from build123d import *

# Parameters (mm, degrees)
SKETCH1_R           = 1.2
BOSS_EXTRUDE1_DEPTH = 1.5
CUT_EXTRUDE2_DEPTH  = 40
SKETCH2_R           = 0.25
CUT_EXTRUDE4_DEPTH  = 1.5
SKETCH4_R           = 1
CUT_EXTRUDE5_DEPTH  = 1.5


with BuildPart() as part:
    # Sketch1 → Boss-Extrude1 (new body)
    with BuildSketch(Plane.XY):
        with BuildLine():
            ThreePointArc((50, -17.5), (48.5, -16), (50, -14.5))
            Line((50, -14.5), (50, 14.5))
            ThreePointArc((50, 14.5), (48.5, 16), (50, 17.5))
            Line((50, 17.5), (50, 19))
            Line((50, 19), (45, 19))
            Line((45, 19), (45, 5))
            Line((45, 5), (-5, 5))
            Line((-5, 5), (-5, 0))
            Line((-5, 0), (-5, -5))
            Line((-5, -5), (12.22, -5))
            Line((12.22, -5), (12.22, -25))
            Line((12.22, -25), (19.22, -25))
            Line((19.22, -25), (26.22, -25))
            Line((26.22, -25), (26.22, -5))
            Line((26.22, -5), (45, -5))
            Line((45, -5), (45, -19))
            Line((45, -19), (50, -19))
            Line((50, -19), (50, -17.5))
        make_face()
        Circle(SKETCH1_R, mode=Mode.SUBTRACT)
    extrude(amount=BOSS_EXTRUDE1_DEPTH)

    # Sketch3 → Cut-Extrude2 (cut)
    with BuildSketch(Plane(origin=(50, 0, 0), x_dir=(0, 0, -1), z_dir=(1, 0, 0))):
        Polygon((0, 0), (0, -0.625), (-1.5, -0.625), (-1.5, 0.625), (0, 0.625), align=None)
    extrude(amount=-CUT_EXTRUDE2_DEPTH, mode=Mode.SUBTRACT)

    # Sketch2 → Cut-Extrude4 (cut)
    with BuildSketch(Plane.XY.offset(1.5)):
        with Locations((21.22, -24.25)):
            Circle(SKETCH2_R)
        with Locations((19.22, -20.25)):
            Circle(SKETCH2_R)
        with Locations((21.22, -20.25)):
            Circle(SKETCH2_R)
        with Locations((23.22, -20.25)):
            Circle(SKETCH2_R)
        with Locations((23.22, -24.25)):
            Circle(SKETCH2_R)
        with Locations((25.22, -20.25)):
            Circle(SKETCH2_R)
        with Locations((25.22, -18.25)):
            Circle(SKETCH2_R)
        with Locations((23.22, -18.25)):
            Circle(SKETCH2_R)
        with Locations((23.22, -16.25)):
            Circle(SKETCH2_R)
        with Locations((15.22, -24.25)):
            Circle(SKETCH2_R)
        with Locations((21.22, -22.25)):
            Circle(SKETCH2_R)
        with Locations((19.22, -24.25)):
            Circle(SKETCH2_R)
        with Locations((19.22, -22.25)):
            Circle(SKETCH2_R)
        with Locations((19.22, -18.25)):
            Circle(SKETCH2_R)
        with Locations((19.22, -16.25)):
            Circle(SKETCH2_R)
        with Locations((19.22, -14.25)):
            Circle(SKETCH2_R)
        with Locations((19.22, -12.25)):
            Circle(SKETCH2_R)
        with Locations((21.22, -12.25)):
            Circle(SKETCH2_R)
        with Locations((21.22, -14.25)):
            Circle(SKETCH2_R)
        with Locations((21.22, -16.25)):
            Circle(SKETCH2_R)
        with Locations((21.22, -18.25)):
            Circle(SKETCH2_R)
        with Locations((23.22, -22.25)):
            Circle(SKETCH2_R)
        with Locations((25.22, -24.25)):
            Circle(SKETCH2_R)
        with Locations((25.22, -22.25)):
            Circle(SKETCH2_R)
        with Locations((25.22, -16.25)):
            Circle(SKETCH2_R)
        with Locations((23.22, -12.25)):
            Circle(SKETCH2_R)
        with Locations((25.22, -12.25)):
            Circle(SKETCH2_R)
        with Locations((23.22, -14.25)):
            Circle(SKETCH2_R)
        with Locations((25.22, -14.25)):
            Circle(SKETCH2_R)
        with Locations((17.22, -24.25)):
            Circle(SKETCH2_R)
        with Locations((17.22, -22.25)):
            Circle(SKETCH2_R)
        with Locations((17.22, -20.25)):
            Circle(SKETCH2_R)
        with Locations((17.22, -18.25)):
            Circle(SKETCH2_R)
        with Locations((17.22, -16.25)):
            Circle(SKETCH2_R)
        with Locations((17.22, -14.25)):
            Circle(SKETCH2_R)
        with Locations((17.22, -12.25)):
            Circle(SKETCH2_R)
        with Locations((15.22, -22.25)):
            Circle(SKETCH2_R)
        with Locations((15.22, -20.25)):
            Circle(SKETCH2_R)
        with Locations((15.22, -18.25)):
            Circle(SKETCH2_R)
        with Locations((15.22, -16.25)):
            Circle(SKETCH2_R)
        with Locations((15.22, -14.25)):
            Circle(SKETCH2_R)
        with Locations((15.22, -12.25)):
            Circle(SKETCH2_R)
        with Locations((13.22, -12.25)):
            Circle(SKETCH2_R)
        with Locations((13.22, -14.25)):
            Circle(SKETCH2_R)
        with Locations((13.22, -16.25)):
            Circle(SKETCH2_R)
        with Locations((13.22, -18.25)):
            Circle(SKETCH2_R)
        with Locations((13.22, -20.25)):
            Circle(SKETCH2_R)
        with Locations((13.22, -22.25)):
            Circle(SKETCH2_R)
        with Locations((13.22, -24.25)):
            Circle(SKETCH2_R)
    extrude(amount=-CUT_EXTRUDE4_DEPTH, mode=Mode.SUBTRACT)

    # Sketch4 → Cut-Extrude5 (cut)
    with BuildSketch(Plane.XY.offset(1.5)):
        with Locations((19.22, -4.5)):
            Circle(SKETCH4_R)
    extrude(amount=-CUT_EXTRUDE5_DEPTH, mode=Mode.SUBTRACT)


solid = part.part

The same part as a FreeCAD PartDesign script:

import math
import FreeCAD as App
import Part
import Sketcher

V = App.Vector
Q = App.Units.Quantity

doc = App.newDocument("Part")
body = doc.addObject("PartDesign::Body", "Body")

sketch1 = body.newObject("Sketcher::SketchObject", "Sketch")
sketch1.AttachmentSupport = (doc.getObject("XY_Plane"), [""])
sketch1.MapMode = "FlatFace"
sketch1.addGeometry(Part.ArcOfCircle(Part.Circle(V(50, -16, 0), V(0, 0, 1), 1.5), math.radians(90), math.radians(270)), False)
sketch1.addGeometry(Part.LineSegment(V(50, -14.5, 0), V(50, 14.5, 0)), False)
sketch1.addGeometry(Part.ArcOfCircle(Part.Circle(V(50, 16, 0), V(0, 0, 1), 1.5), math.radians(90), math.radians(270)), False)
sketch1.addGeometry(Part.LineSegment(V(50, 17.5, 0), V(50, 19, 0)), False)
sketch1.addGeometry(Part.LineSegment(V(50, 19, 0), V(45, 19, 0)), False)
sketch1.addGeometry(Part.LineSegment(V(45, 19, 0), V(45, 5, 0)), False)
sketch1.addGeometry(Part.LineSegment(V(45, 5, 0), V(-5, 5, 0)), False)
sketch1.addGeometry(Part.LineSegment(V(-5, 5, 0), V(-5, -5, 0)), False)
sketch1.addGeometry(Part.LineSegment(V(-5, -5, 0), V(12.2, -5, 0)), False)
sketch1.addGeometry(Part.LineSegment(V(12.2, -5, 0), V(12.2, -25, 0)), False)
sketch1.addGeometry(Part.LineSegment(V(12.2, -25, 0), V(26.2, -25, 0)), False)
sketch1.addGeometry(Part.LineSegment(V(26.2, -25, 0), V(26.2, -5, 0)), False)
sketch1.addGeometry(Part.LineSegment(V(26.2, -5, 0), V(45, -5, 0)), False)
sketch1.addGeometry(Part.LineSegment(V(45, -5, 0), V(45, -19, 0)), False)
sketch1.addGeometry(Part.LineSegment(V(45, -19, 0), V(50, -19, 0)), False)
sketch1.addGeometry(Part.LineSegment(V(50, -19, 0), V(50, -17.5, 0)), False)
sketch1.addGeometry(Part.Circle(V(0, 0, 0), V(0, 0, 1), 1.2), False)
sketch1.addConstraint(Sketcher.Constraint("Coincident", 0, 1, 1, 1))
sketch1.addConstraint(Sketcher.Constraint("Coincident", 1, 2, 2, 2))
sketch1.addConstraint(Sketcher.Constraint("Coincident", 2, 1, 3, 1))
sketch1.addConstraint(Sketcher.Constraint("Coincident", 3, 2, 4, 1))
sketch1.addConstraint(Sketcher.Constraint("Coincident", 4, 2, 5, 1))
sketch1.addConstraint(Sketcher.Constraint("Coincident", 5, 2, 6, 1))
sketch1.addConstraint(Sketcher.Constraint("Coincident", 6, 2, 7, 1))
sketch1.addConstraint(Sketcher.Constraint("Coincident", 7, 2, 8, 1))
sketch1.addConstraint(Sketcher.Constraint("Coincident", 8, 2, 9, 1))
sketch1.addConstraint(Sketcher.Constraint("Coincident", 9, 2, 10, 1))
sketch1.addConstraint(Sketcher.Constraint("Coincident", 10, 2, 11, 1))
sketch1.addConstraint(Sketcher.Constraint("Coincident", 11, 2, 12, 1))
sketch1.addConstraint(Sketcher.Constraint("Coincident", 12, 2, 13, 1))
sketch1.addConstraint(Sketcher.Constraint("Coincident", 13, 2, 14, 1))
sketch1.addConstraint(Sketcher.Constraint("Coincident", 14, 2, 15, 1))
sketch1.addConstraint(Sketcher.Constraint("Coincident", 15, 2, 0, 2))
sketch1.addConstraint(Sketcher.Constraint("Vertical", 1))
sketch1.addConstraint(Sketcher.Constraint("Vertical", 3))
sketch1.addConstraint(Sketcher.Constraint("Horizontal", 4))
sketch1.addConstraint(Sketcher.Constraint("Vertical", 5))
sketch1.addConstraint(Sketcher.Constraint("Horizontal", 6))
sketch1.addConstraint(Sketcher.Constraint("Vertical", 7))
sketch1.addConstraint(Sketcher.Constraint("Horizontal", 8))
sketch1.addConstraint(Sketcher.Constraint("Vertical", 9))
sketch1.addConstraint(Sketcher.Constraint("Horizontal", 10))
sketch1.addConstraint(Sketcher.Constraint("Vertical", 11))
sketch1.addConstraint(Sketcher.Constraint("Horizontal", 12))
sketch1.addConstraint(Sketcher.Constraint("Vertical", 13))
sketch1.addConstraint(Sketcher.Constraint("Horizontal", 14))
sketch1.addConstraint(Sketcher.Constraint("Vertical", 15))
sketch1.addConstraint(Sketcher.Constraint("Coincident", 16, 3, -1, 1))
sketch1.addConstraint(Sketcher.Constraint("Equal", 0, 2))
sketch1.addConstraint(Sketcher.Constraint("Symmetric", 0, 3, 2, 3, -1))
sketch1.addConstraint(Sketcher.Constraint("Symmetric", 5, 2, 12, 2, -1))
sketch1.addConstraint(Sketcher.Constraint("Symmetric", 3, 2, 14, 2, -1))
sketch1.addConstraint(Sketcher.Constraint("Horizontal", 8, 2, 11, 2))
sketch1.addConstraint(Sketcher.Constraint("Vertical", 2, 3, 0, 1))
sketch1.addConstraint(Sketcher.Constraint("Vertical", 1, 2, 2, 1))
sketch1.addConstraint(Sketcher.Constraint("Equal", 10, 5))
sketch1.addConstraint(Sketcher.Constraint("Diameter", 16, Q("2.4 mm")))
sketch1.addConstraint(Sketcher.Constraint("Radius", 0, Q("1.5 mm")))
sketch1.addConstraint(Sketcher.Constraint("DistanceX", 4, 2, 4, 1, Q("5 mm")))
sketch1.addConstraint(Sketcher.Constraint("DistanceX", 6, 2, 6, 1, Q("50 mm")))
sketch1.addConstraint(Sketcher.Constraint("DistanceX", 10, 1, 10, 2, Q("14 mm")))
sketch1.addConstraint(Sketcher.Constraint("DistanceY", 1, 1, 1, 2, Q("29 mm")))
sketch1.addConstraint(Sketcher.Constraint("DistanceY", 7, 2, 7, 1, Q("10 mm")))
sketch1.addConstraint(Sketcher.Constraint("DistanceY", 9, 2, 9, 1, Q("20 mm")))
sketch1.addConstraint(Sketcher.Constraint("DistanceX", -1, 1, 0, 3, Q("50 mm")))
sketch1.addConstraint(Sketcher.Constraint("DistanceX", 8, 1, 8, 2, Q("17.22 mm")))
pad1 = body.newObject("PartDesign::Pad", "Pad")
pad1.Profile = sketch1
pad1.Length = 1.5

sketch2 = body.newObject("Sketcher::SketchObject", "Sketch001")
sketch2.AttachmentSupport = (doc.getObject("YZ_Plane"), [""])
sketch2.MapMode = "FlatFace"
sketch2.AttachmentOffset = App.Placement(V(0, 0, 50), App.Rotation())
sketch2.addGeometry(Part.LineSegment(V(-0.6, 0, 0), V(0.6, 0, 0)), False)
sketch2.addGeometry(Part.LineSegment(V(0.6, 0, 0), V(0.6, 1.5, 0)), False)
sketch2.addGeometry(Part.LineSegment(V(0.6, 1.5, 0), V(-0.6, 1.5, 0)), False)
sketch2.addGeometry(Part.LineSegment(V(-0.6, 1.5, 0), V(-0.6, 0, 0)), False)
sketch2.addConstraint(Sketcher.Constraint("Coincident", 0, 2, 1, 1))
sketch2.addConstraint(Sketcher.Constraint("Coincident", 1, 2, 2, 1))
sketch2.addConstraint(Sketcher.Constraint("Coincident", 2, 2, 3, 1))
sketch2.addConstraint(Sketcher.Constraint("Coincident", 3, 2, 0, 1))
sketch2.addConstraint(Sketcher.Constraint("Horizontal", 0))
sketch2.addConstraint(Sketcher.Constraint("Vertical", 1))
sketch2.addConstraint(Sketcher.Constraint("Horizontal", 2))
sketch2.addConstraint(Sketcher.Constraint("Vertical", 3))
sketch2.addConstraint(Sketcher.Constraint("Symmetric", 0, 2, 3, 2, -1, 1))
sketch2.addConstraint(Sketcher.Constraint("DistanceY", 1, 1, 1, 2, Q("1.5 mm")))
sketch2.addConstraint(Sketcher.Constraint("DistanceX", 0, 1, 0, 2, Q("1.25 mm")))
pocket1 = body.newObject("PartDesign::Pocket", "Pocket")
pocket1.Profile = sketch2
pocket1.Length = 40

sketch3 = body.newObject("Sketcher::SketchObject", "Sketch002")
sketch3.AttachmentSupport = (doc.getObject("XY_Plane"), [""])
sketch3.MapMode = "FlatFace"
sketch3.AttachmentOffset = App.Placement(V(0, 0, 1.5), App.Rotation())
sketch3.addGeometry(Part.Circle(V(21.22, -24.25, 0), V(0, 0, 1), 0.25), False)
sketch3.addGeometry(Part.Circle(V(19.22, -20.25, 0), V(0, 0, 1), 0.25), False)
sketch3.addGeometry(Part.Circle(V(21.22, -20.25, 0), V(0, 0, 1), 0.25), False)
sketch3.addGeometry(Part.Circle(V(23.22, -20.25, 0), V(0, 0, 1), 0.25), False)
sketch3.addGeometry(Part.Circle(V(23.22, -24.25, 0), V(0, 0, 1), 0.25), False)
sketch3.addGeometry(Part.Circle(V(25.22, -20.25, 0), V(0, 0, 1), 0.25), False)
sketch3.addGeometry(Part.Circle(V(25.22, -18.25, 0), V(0, 0, 1), 0.25), False)
sketch3.addGeometry(Part.Circle(V(23.22, -18.25, 0), V(0, 0, 1), 0.25), False)
sketch3.addGeometry(Part.Circle(V(23.22, -16.25, 0), V(0, 0, 1), 0.25), False)
sketch3.addGeometry(Part.Circle(V(15.22, -24.25, 0), V(0, 0, 1), 0.25), False)
sketch3.addGeometry(Part.Circle(V(21.22, -22.25, 0), V(0, 0, 1), 0.25), False)
sketch3.addGeometry(Part.Circle(V(19.22, -24.25, 0), V(0, 0, 1), 0.25), False)
sketch3.addGeometry(Part.Circle(V(19.22, -22.25, 0), V(0, 0, 1), 0.25), False)
sketch3.addGeometry(Part.Circle(V(19.22, -18.25, 0), V(0, 0, 1), 0.25), False)
sketch3.addGeometry(Part.Circle(V(19.22, -16.25, 0), V(0, 0, 1), 0.25), False)
sketch3.addGeometry(Part.Circle(V(19.22, -14.25, 0), V(0, 0, 1), 0.25), False)
sketch3.addGeometry(Part.Circle(V(19.22, -12.25, 0), V(0, 0, 1), 0.25), False)
sketch3.addGeometry(Part.Circle(V(21.22, -12.25, 0), V(0, 0, 1), 0.25), False)
sketch3.addGeometry(Part.Circle(V(21.22, -14.25, 0), V(0, 0, 1), 0.25), False)
sketch3.addGeometry(Part.Circle(V(21.22, -16.25, 0), V(0, 0, 1), 0.25), False)
sketch3.addGeometry(Part.Circle(V(21.22, -18.25, 0), V(0, 0, 1), 0.25), False)
sketch3.addGeometry(Part.Circle(V(23.22, -22.25, 0), V(0, 0, 1), 0.25), False)
sketch3.addGeometry(Part.Circle(V(25.22, -24.25, 0), V(0, 0, 1), 0.25), False)
sketch3.addGeometry(Part.Circle(V(25.22, -22.25, 0), V(0, 0, 1), 0.25), False)
sketch3.addGeometry(Part.Circle(V(25.22, -16.25, 0), V(0, 0, 1), 0.25), False)
sketch3.addGeometry(Part.Circle(V(23.22, -12.25, 0), V(0, 0, 1), 0.25), False)
sketch3.addGeometry(Part.Circle(V(25.22, -12.25, 0), V(0, 0, 1), 0.25), False)
sketch3.addGeometry(Part.Circle(V(23.22, -14.25, 0), V(0, 0, 1), 0.25), False)
sketch3.addGeometry(Part.Circle(V(25.22, -14.25, 0), V(0, 0, 1), 0.25), False)
sketch3.addGeometry(Part.Circle(V(17.22, -24.25, 0), V(0, 0, 1), 0.25), False)
sketch3.addGeometry(Part.Circle(V(17.22, -22.25, 0), V(0, 0, 1), 0.25), False)
sketch3.addGeometry(Part.Circle(V(17.22, -20.25, 0), V(0, 0, 1), 0.25), False)
sketch3.addGeometry(Part.Circle(V(17.22, -18.25, 0), V(0, 0, 1), 0.25), False)
sketch3.addGeometry(Part.Circle(V(17.22, -16.25, 0), V(0, 0, 1), 0.25), False)
sketch3.addGeometry(Part.Circle(V(17.22, -14.25, 0), V(0, 0, 1), 0.25), False)
sketch3.addGeometry(Part.Circle(V(17.22, -12.25, 0), V(0, 0, 1), 0.25), False)
sketch3.addGeometry(Part.Circle(V(15.22, -22.25, 0), V(0, 0, 1), 0.25), False)
sketch3.addGeometry(Part.Circle(V(15.22, -20.25, 0), V(0, 0, 1), 0.25), False)
sketch3.addGeometry(Part.Circle(V(15.22, -18.25, 0), V(0, 0, 1), 0.25), False)
sketch3.addGeometry(Part.Circle(V(15.22, -16.25, 0), V(0, 0, 1), 0.25), False)
sketch3.addGeometry(Part.Circle(V(15.22, -14.25, 0), V(0, 0, 1), 0.25), False)
sketch3.addGeometry(Part.Circle(V(15.22, -12.25, 0), V(0, 0, 1), 0.25), False)
sketch3.addGeometry(Part.Circle(V(13.22, -12.25, 0), V(0, 0, 1), 0.25), False)
sketch3.addGeometry(Part.Circle(V(13.22, -14.25, 0), V(0, 0, 1), 0.25), False)
sketch3.addGeometry(Part.Circle(V(13.22, -16.25, 0), V(0, 0, 1), 0.25), False)
sketch3.addGeometry(Part.Circle(V(13.22, -18.25, 0), V(0, 0, 1), 0.25), False)
sketch3.addGeometry(Part.Circle(V(13.22, -20.25, 0), V(0, 0, 1), 0.25), False)
sketch3.addGeometry(Part.Circle(V(13.22, -22.25, 0), V(0, 0, 1), 0.25), False)
sketch3.addGeometry(Part.Circle(V(13.22, -24.25, 0), V(0, 0, 1), 0.25), False)
sketch3.addConstraint(Sketcher.Constraint("Equal", 0, 1))
sketch3.addConstraint(Sketcher.Constraint("Equal", 1, 2))
sketch3.addConstraint(Sketcher.Constraint("Equal", 2, 3))
sketch3.addConstraint(Sketcher.Constraint("Equal", 3, 4))
sketch3.addConstraint(Sketcher.Constraint("Equal", 4, 5))
sketch3.addConstraint(Sketcher.Constraint("Equal", 5, 6))
sketch3.addConstraint(Sketcher.Constraint("Equal", 6, 7))
sketch3.addConstraint(Sketcher.Constraint("Equal", 7, 8))
sketch3.addConstraint(Sketcher.Constraint("Equal", 8, 9))
sketch3.addConstraint(Sketcher.Constraint("Equal", 9, 10))
sketch3.addConstraint(Sketcher.Constraint("Equal", 10, 11))
sketch3.addConstraint(Sketcher.Constraint("Equal", 11, 12))
sketch3.addConstraint(Sketcher.Constraint("Equal", 12, 13))
sketch3.addConstraint(Sketcher.Constraint("Equal", 13, 14))
sketch3.addConstraint(Sketcher.Constraint("Equal", 14, 15))
sketch3.addConstraint(Sketcher.Constraint("Equal", 15, 16))
sketch3.addConstraint(Sketcher.Constraint("Equal", 16, 17))
sketch3.addConstraint(Sketcher.Constraint("Equal", 17, 18))
sketch3.addConstraint(Sketcher.Constraint("Equal", 18, 19))
sketch3.addConstraint(Sketcher.Constraint("Equal", 19, 20))
sketch3.addConstraint(Sketcher.Constraint("Equal", 20, 21))
sketch3.addConstraint(Sketcher.Constraint("Equal", 21, 22))
sketch3.addConstraint(Sketcher.Constraint("Equal", 22, 23))
sketch3.addConstraint(Sketcher.Constraint("Equal", 23, 24))
sketch3.addConstraint(Sketcher.Constraint("Equal", 24, 25))
sketch3.addConstraint(Sketcher.Constraint("Equal", 25, 26))
sketch3.addConstraint(Sketcher.Constraint("Equal", 26, 27))
sketch3.addConstraint(Sketcher.Constraint("Equal", 27, 28))
sketch3.addConstraint(Sketcher.Constraint("Equal", 28, 29))
sketch3.addConstraint(Sketcher.Constraint("Equal", 29, 30))
sketch3.addConstraint(Sketcher.Constraint("Equal", 30, 31))
sketch3.addConstraint(Sketcher.Constraint("Equal", 31, 32))
sketch3.addConstraint(Sketcher.Constraint("Equal", 32, 33))
sketch3.addConstraint(Sketcher.Constraint("Equal", 33, 34))
sketch3.addConstraint(Sketcher.Constraint("Equal", 34, 35))
sketch3.addConstraint(Sketcher.Constraint("Equal", 35, 36))
sketch3.addConstraint(Sketcher.Constraint("Equal", 36, 37))
sketch3.addConstraint(Sketcher.Constraint("Equal", 37, 38))
sketch3.addConstraint(Sketcher.Constraint("Equal", 38, 39))
sketch3.addConstraint(Sketcher.Constraint("Equal", 39, 40))
sketch3.addConstraint(Sketcher.Constraint("Equal", 40, 41))
sketch3.addConstraint(Sketcher.Constraint("Equal", 41, 42))
sketch3.addConstraint(Sketcher.Constraint("Equal", 42, 43))
sketch3.addConstraint(Sketcher.Constraint("Equal", 43, 44))
sketch3.addConstraint(Sketcher.Constraint("Equal", 44, 45))
sketch3.addConstraint(Sketcher.Constraint("Equal", 45, 46))
sketch3.addConstraint(Sketcher.Constraint("Equal", 46, 47))
sketch3.addConstraint(Sketcher.Constraint("Equal", 47, 48))
sketch3.addConstraint(Sketcher.Constraint("Horizontal", 1, 3, 2, 3))
sketch3.addConstraint(Sketcher.Constraint("Horizontal", 2, 3, 3, 3))
sketch3.addConstraint(Sketcher.Constraint("Horizontal", 0, 3, 4, 3))
sketch3.addConstraint(Sketcher.Constraint("Horizontal", 3, 3, 5, 3))
sketch3.addConstraint(Sketcher.Constraint("Horizontal", 6, 3, 7, 3))
sketch3.addConstraint(Sketcher.Constraint("Horizontal", 4, 3, 9, 3))
sketch3.addConstraint(Sketcher.Constraint("Horizontal", 9, 3, 11, 3))
sketch3.addConstraint(Sketcher.Constraint("Horizontal", 10, 3, 12, 3))
sketch3.addConstraint(Sketcher.Constraint("Horizontal", 7, 3, 13, 3))
sketch3.addConstraint(Sketcher.Constraint("Horizontal", 8, 3, 14, 3))
sketch3.addConstraint(Sketcher.Constraint("Horizontal", 16, 3, 17, 3))
sketch3.addConstraint(Sketcher.Constraint("Horizontal", 15, 3, 18, 3))
sketch3.addConstraint(Sketcher.Constraint("Horizontal", 14, 3, 19, 3))
sketch3.addConstraint(Sketcher.Constraint("Horizontal", 13, 3, 20, 3))
sketch3.addConstraint(Sketcher.Constraint("Horizontal", 12, 3, 21, 3))
sketch3.addConstraint(Sketcher.Constraint("Horizontal", 11, 3, 22, 3))
sketch3.addConstraint(Sketcher.Constraint("Horizontal", 21, 3, 23, 3))
sketch3.addConstraint(Sketcher.Constraint("Horizontal", 19, 3, 24, 3))
sketch3.addConstraint(Sketcher.Constraint("Horizontal", 17, 3, 25, 3))
sketch3.addConstraint(Sketcher.Constraint("Horizontal", 25, 3, 26, 3))
sketch3.addConstraint(Sketcher.Constraint("Horizontal", 18, 3, 27, 3))
sketch3.addConstraint(Sketcher.Constraint("Horizontal", 27, 3, 28, 3))
sketch3.addConstraint(Sketcher.Constraint("Horizontal", 22, 3, 29, 3))
sketch3.addConstraint(Sketcher.Constraint("Horizontal", 23, 3, 30, 3))
sketch3.addConstraint(Sketcher.Constraint("Horizontal", 5, 3, 31, 3))
sketch3.addConstraint(Sketcher.Constraint("Horizontal", 20, 3, 32, 3))
sketch3.addConstraint(Sketcher.Constraint("Horizontal", 24, 3, 33, 3))
sketch3.addConstraint(Sketcher.Constraint("Horizontal", 28, 3, 34, 3))
sketch3.addConstraint(Sketcher.Constraint("Horizontal", 26, 3, 35, 3))
sketch3.addConstraint(Sketcher.Constraint("Horizontal", 30, 3, 36, 3))
sketch3.addConstraint(Sketcher.Constraint("Horizontal", 31, 3, 37, 3))
sketch3.addConstraint(Sketcher.Constraint("Horizontal", 32, 3, 38, 3))
sketch3.addConstraint(Sketcher.Constraint("Horizontal", 33, 3, 39, 3))
sketch3.addConstraint(Sketcher.Constraint("Horizontal", 34, 3, 40, 3))
sketch3.addConstraint(Sketcher.Constraint("Horizontal", 35, 3, 41, 3))
sketch3.addConstraint(Sketcher.Constraint("Horizontal", 41, 3, 42, 3))
sketch3.addConstraint(Sketcher.Constraint("Horizontal", 40, 3, 43, 3))
sketch3.addConstraint(Sketcher.Constraint("Horizontal", 39, 3, 44, 3))
sketch3.addConstraint(Sketcher.Constraint("Horizontal", 38, 3, 45, 3))
sketch3.addConstraint(Sketcher.Constraint("Horizontal", 37, 3, 46, 3))
sketch3.addConstraint(Sketcher.Constraint("Horizontal", 36, 3, 47, 3))
sketch3.addConstraint(Sketcher.Constraint("Horizontal", 29, 3, 48, 3))
sketch3.addConstraint(Sketcher.Constraint("Vertical", 0, 3, 2, 3))
sketch3.addConstraint(Sketcher.Constraint("Vertical", 3, 3, 4, 3))
sketch3.addConstraint(Sketcher.Constraint("Vertical", 5, 3, 6, 3))
sketch3.addConstraint(Sketcher.Constraint("Vertical", 4, 3, 7, 3))
sketch3.addConstraint(Sketcher.Constraint("Vertical", 7, 3, 8, 3))
sketch3.addConstraint(Sketcher.Constraint("Vertical", 2, 3, 10, 3))
sketch3.addConstraint(Sketcher.Constraint("Vertical", 1, 3, 11, 3))
sketch3.addConstraint(Sketcher.Constraint("Vertical", 11, 3, 12, 3))
sketch3.addConstraint(Sketcher.Constraint("Vertical", 12, 3, 13, 3))
sketch3.addConstraint(Sketcher.Constraint("Vertical", 13, 3, 14, 3))
sketch3.addConstraint(Sketcher.Constraint("Vertical", 14, 3, 15, 3))
sketch3.addConstraint(Sketcher.Constraint("Vertical", 15, 3, 16, 3))
sketch3.addConstraint(Sketcher.Constraint("Vertical", 10, 3, 17, 3))
sketch3.addConstraint(Sketcher.Constraint("Vertical", 17, 3, 18, 3))
sketch3.addConstraint(Sketcher.Constraint("Vertical", 18, 3, 19, 3))
sketch3.addConstraint(Sketcher.Constraint("Vertical", 19, 3, 20, 3))
sketch3.addConstraint(Sketcher.Constraint("Vertical", 8, 3, 21, 3))
sketch3.addConstraint(Sketcher.Constraint("Vertical", 6, 3, 22, 3))
sketch3.addConstraint(Sketcher.Constraint("Vertical", 22, 3, 23, 3))
sketch3.addConstraint(Sketcher.Constraint("Vertical", 23, 3, 24, 3))
sketch3.addConstraint(Sketcher.Constraint("Vertical", 21, 3, 25, 3))
sketch3.addConstraint(Sketcher.Constraint("Vertical", 24, 3, 26, 3))
sketch3.addConstraint(Sketcher.Constraint("Vertical", 25, 3, 27, 3))
sketch3.addConstraint(Sketcher.Constraint("Vertical", 26, 3, 28, 3))
sketch3.addConstraint(Sketcher.Constraint("Vertical", 29, 3, 30, 3))
sketch3.addConstraint(Sketcher.Constraint("Vertical", 30, 3, 31, 3))
sketch3.addConstraint(Sketcher.Constraint("Vertical", 31, 3, 32, 3))
sketch3.addConstraint(Sketcher.Constraint("Vertical", 32, 3, 33, 3))
sketch3.addConstraint(Sketcher.Constraint("Vertical", 33, 3, 34, 3))
sketch3.addConstraint(Sketcher.Constraint("Vertical", 34, 3, 35, 3))
sketch3.addConstraint(Sketcher.Constraint("Vertical", 9, 3, 36, 3))
sketch3.addConstraint(Sketcher.Constraint("Vertical", 36, 3, 37, 3))
sketch3.addConstraint(Sketcher.Constraint("Vertical", 37, 3, 38, 3))
sketch3.addConstraint(Sketcher.Constraint("Vertical", 38, 3, 39, 3))
sketch3.addConstraint(Sketcher.Constraint("Vertical", 39, 3, 40, 3))
sketch3.addConstraint(Sketcher.Constraint("Vertical", 40, 3, 41, 3))
sketch3.addConstraint(Sketcher.Constraint("Vertical", 42, 3, 43, 3))
sketch3.addConstraint(Sketcher.Constraint("Vertical", 43, 3, 44, 3))
sketch3.addConstraint(Sketcher.Constraint("Vertical", 44, 3, 45, 3))
sketch3.addConstraint(Sketcher.Constraint("Vertical", 45, 3, 46, 3))
sketch3.addConstraint(Sketcher.Constraint("Vertical", 46, 3, 47, 3))
sketch3.addConstraint(Sketcher.Constraint("Vertical", 47, 3, 48, 3))
sketch3.addConstraint(Sketcher.Constraint("Diameter", 0, Q("0.5 mm")))
sketch3.addConstraint(Sketcher.Constraint("DistanceX", 1, 3, 0, 3, Q("2 mm")))
sketch3.addConstraint(Sketcher.Constraint("DistanceY", 0, 3, 1, 3, Q("4 mm")))
sketch3.addConstraint(Sketcher.Constraint("DistanceX", 2, 3, 3, 3, Q("2 mm")))
sketch3.addConstraint(Sketcher.Constraint("DistanceX", 3, 3, 5, 3, Q("2 mm")))
sketch3.addConstraint(Sketcher.Constraint("DistanceY", 5, 3, 6, 3, Q("2 mm")))
sketch3.addConstraint(Sketcher.Constraint("DistanceY", 7, 3, 8, 3, Q("2 mm")))
sketch3.addConstraint(Sketcher.Constraint("DistanceX", 9, 3, 1, 3, Q("4 mm")))
sketch3.addConstraint(Sketcher.Constraint("DistanceY", 0, 3, 10, 3, Q("2 mm")))
sketch3.addConstraint(Sketcher.Constraint("DistanceY", 14, 3, 15, 3, Q("2 mm")))
sketch3.addConstraint(Sketcher.Constraint("DistanceY", 15, 3, 16, 3, Q("2 mm")))
sketch3.addConstraint(Sketcher.Constraint("DistanceX", 9, 3, 29, 3, Q("2 mm")))
sketch3.addConstraint(Sketcher.Constraint("DistanceX", 42, 3, 41, 3, Q("2 mm")))
sketch3.addConstraint(Sketcher.Constraint("DistanceX", -1, 1, 0, 3, Q("21.22 mm")))
sketch3.addConstraint(Sketcher.Constraint("DistanceY", 0, 3, -1, 1, Q("24.25 mm")))
pocket2 = body.newObject("PartDesign::Pocket", "Pocket001")
pocket2.Profile = sketch3
pocket2.Length = 1.5

sketch4 = body.newObject("Sketcher::SketchObject", "Sketch003")
sketch4.AttachmentSupport = (doc.getObject("XY_Plane"), [""])
sketch4.MapMode = "FlatFace"
sketch4.AttachmentOffset = App.Placement(V(0, 0, 1.5), App.Rotation())
sketch4.addGeometry(Part.Circle(V(19.2, -4.5, 0), V(0, 0, 1), 1), False)
sketch4.addConstraint(Sketcher.Constraint("Diameter", 0, Q("2 mm")))
sketch4.addConstraint(Sketcher.Constraint("DistanceY", 0, 3, -1, 1, Q("4.5 mm")))
sketch4.addConstraint(Sketcher.Constraint("DistanceX", -1, 1, 0, 3, Q("19.22 mm")))
pocket3 = body.newObject("PartDesign::Pocket", "Pocket002")
pocket3.Profile = sketch4
pocket3.Length = 1.5

doc.recompute()
